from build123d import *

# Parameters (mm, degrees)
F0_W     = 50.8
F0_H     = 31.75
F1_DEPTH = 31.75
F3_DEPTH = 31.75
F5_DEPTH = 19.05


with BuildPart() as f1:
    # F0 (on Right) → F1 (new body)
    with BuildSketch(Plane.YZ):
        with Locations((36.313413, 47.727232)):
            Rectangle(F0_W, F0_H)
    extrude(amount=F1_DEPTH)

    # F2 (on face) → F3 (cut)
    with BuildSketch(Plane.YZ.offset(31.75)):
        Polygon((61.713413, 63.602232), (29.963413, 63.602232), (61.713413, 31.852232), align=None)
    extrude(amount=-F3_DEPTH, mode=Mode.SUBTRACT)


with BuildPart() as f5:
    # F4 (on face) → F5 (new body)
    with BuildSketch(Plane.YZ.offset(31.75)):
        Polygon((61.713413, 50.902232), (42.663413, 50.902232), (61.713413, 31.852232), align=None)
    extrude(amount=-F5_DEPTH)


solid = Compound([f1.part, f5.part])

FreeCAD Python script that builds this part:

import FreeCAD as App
import Part
import Sketcher

V = App.Vector
Q = App.Units.Quantity

doc = App.newDocument("Part")
body = doc.addObject("PartDesign::Body", "Body")

sketch1 = body.newObject("Sketcher::SketchObject", "Sketch")
sketch1.AttachmentSupport = (doc.getObject("YZ_Plane"), [""])
sketch1.MapMode = "FlatFace"
sketch1.addGeometry([
    Part.LineSegment(V(10.913413, 63.602232, 0), V(10.913413, 31.852232, 0)),
    Part.LineSegment(V(10.913413, 31.852232, 0), V(61.713413, 31.852232, 0)),
    Part.LineSegment(V(61.713413, 31.852232, 0), V(61.713413, 63.602232, 0)),
    Part.LineSegment(V(61.713413, 63.602232, 0), V(10.913413, 63.602232, 0)),
], False)
sketch1.addConstraint([
    Sketcher.Constraint("Coincident", 0, 2, 1, 1),
    Sketcher.Constraint("Coincident", 1, 2, 2, 1),
    Sketcher.Constraint("Coincident", 2, 2, 3, 1),
    Sketcher.Constraint("Coincident", 3, 2, 0, 1),
    Sketcher.Constraint("Vertical", 0),
    Sketcher.Constraint("Horizontal", 1),
    Sketcher.Constraint("Vertical", 2),
    Sketcher.Constraint("Horizontal", 3),
    Sketcher.Constraint("DistanceX", 1, 1, 1, 2, Q("2 in")),
    Sketcher.Constraint("DistanceY", 0, 2, 0, 1, Q("1.25 in")),
    Sketcher.Constraint("DistanceX", -1, 1, 0, 2, Q("10.913413 mm")),
    Sketcher.Constraint("DistanceY", -1, 1, 0, 2, Q("31.852232 mm")),
])
pad1 = body.newObject("PartDesign::Pad", "Pad")
pad1.Profile = sketch1
pad1.Length = Q("1.25 in")

sketch2 = body.newObject("Sketcher::SketchObject", "Sketch001")
sketch2.AttachmentSupport = (doc.getObject("YZ_Plane"), [""])
sketch2.MapMode = "FlatFace"
sketch2.AttachmentOffset = App.Placement(V(0, 0, 1.25 * 25.4), App.Rotation())
sketch2.addGeometry([
    Part.LineSegment(V(61.713413, 63.602232, 0), V(29.963413, 63.602232, 0)),
    Part.LineSegment(V(29.963413, 63.602232, 0), V(61.713413, 31.852232, 0)),
    Part.LineSegment(V(61.713413, 31.852232, 0), V(61.713413, 63.602232, 0)),
], False)
sketch2.addConstraint([
    Sketcher.Constraint("Coincident", 0, 2, 1, 1),
    Sketcher.Constraint("Coincident", 1, 2, 2, 1),
    Sketcher.Constraint("Coincident", 2, 2, 0, 1),
    Sketcher.Constraint("Horizontal", 0),
    Sketcher.Constraint("Vertical", 2),
    Sketcher.Constraint("Equal", 0, 2),
    Sketcher.Constraint("DistanceX", 0, 2, 0, 1, Q("1.25 in")),
    Sketcher.Constraint("DistanceX", -1, 1, 0, 2, Q("29.963413 mm")),
    Sketcher.Constraint("DistanceY", -1, 1, 0, 2, Q("63.602232 mm")),
])
pocket1 = body.newObject("PartDesign::Pocket", "Pocket")
pocket1.Profile = sketch2
pocket1.Length = Q("1.25 in")
body2 = doc.addObject("PartDesign::Body", "Body001")

sketch3 = body2.newObject("Sketcher::SketchObject", "Sketch002")
sketch3.AttachmentSupport = (doc.getObject("YZ_Plane001"), [""])
sketch3.MapMode = "FlatFace"
sketch3.AttachmentOffset = App.Placement(V(0, 0, 1.25 * 25.4), App.Rotation())
sketch3.addGeometry([
    Part.LineSegment(V(61.713413, 50.902232, 0), V(42.663413, 50.902232, 0)),
    Part.LineSegment(V(42.663413, 50.902232, 0), V(61.713413, 31.852232, 0)),
    Part.LineSegment(V(61.713413, 31.852232, 0), V(61.713413, 50.902232, 0)),
], False)
sketch3.addConstraint([
    Sketcher.Constraint("Coincident", 0, 2, 1, 1),
    Sketcher.Constraint("Coincident", 1, 2, 2, 1),
    Sketcher.Constraint("Coincident", 2, 2, 0, 1),
    Sketcher.Constraint("Horizontal", 0),
    Sketcher.Constraint("Vertical", 2),
    Sketcher.Constraint("Equal", 0, 2),
    Sketcher.Constraint("DistanceX", 0, 2, 0, 1, Q("0.75 in")),
    Sketcher.Constraint("DistanceY", -1, 1, 0, 2, Q("50.902232 mm")),
    Sketcher.Constraint("DistanceX", -1, 1, 0, 2, Q("42.663413 mm")),
])
pad2 = body2.newObject("PartDesign::Pad", "Pad001")
pad2.Profile = sketch3
pad2.Length = Q("0.75 in")
pad2.Reversed = True

doc.recompute()
